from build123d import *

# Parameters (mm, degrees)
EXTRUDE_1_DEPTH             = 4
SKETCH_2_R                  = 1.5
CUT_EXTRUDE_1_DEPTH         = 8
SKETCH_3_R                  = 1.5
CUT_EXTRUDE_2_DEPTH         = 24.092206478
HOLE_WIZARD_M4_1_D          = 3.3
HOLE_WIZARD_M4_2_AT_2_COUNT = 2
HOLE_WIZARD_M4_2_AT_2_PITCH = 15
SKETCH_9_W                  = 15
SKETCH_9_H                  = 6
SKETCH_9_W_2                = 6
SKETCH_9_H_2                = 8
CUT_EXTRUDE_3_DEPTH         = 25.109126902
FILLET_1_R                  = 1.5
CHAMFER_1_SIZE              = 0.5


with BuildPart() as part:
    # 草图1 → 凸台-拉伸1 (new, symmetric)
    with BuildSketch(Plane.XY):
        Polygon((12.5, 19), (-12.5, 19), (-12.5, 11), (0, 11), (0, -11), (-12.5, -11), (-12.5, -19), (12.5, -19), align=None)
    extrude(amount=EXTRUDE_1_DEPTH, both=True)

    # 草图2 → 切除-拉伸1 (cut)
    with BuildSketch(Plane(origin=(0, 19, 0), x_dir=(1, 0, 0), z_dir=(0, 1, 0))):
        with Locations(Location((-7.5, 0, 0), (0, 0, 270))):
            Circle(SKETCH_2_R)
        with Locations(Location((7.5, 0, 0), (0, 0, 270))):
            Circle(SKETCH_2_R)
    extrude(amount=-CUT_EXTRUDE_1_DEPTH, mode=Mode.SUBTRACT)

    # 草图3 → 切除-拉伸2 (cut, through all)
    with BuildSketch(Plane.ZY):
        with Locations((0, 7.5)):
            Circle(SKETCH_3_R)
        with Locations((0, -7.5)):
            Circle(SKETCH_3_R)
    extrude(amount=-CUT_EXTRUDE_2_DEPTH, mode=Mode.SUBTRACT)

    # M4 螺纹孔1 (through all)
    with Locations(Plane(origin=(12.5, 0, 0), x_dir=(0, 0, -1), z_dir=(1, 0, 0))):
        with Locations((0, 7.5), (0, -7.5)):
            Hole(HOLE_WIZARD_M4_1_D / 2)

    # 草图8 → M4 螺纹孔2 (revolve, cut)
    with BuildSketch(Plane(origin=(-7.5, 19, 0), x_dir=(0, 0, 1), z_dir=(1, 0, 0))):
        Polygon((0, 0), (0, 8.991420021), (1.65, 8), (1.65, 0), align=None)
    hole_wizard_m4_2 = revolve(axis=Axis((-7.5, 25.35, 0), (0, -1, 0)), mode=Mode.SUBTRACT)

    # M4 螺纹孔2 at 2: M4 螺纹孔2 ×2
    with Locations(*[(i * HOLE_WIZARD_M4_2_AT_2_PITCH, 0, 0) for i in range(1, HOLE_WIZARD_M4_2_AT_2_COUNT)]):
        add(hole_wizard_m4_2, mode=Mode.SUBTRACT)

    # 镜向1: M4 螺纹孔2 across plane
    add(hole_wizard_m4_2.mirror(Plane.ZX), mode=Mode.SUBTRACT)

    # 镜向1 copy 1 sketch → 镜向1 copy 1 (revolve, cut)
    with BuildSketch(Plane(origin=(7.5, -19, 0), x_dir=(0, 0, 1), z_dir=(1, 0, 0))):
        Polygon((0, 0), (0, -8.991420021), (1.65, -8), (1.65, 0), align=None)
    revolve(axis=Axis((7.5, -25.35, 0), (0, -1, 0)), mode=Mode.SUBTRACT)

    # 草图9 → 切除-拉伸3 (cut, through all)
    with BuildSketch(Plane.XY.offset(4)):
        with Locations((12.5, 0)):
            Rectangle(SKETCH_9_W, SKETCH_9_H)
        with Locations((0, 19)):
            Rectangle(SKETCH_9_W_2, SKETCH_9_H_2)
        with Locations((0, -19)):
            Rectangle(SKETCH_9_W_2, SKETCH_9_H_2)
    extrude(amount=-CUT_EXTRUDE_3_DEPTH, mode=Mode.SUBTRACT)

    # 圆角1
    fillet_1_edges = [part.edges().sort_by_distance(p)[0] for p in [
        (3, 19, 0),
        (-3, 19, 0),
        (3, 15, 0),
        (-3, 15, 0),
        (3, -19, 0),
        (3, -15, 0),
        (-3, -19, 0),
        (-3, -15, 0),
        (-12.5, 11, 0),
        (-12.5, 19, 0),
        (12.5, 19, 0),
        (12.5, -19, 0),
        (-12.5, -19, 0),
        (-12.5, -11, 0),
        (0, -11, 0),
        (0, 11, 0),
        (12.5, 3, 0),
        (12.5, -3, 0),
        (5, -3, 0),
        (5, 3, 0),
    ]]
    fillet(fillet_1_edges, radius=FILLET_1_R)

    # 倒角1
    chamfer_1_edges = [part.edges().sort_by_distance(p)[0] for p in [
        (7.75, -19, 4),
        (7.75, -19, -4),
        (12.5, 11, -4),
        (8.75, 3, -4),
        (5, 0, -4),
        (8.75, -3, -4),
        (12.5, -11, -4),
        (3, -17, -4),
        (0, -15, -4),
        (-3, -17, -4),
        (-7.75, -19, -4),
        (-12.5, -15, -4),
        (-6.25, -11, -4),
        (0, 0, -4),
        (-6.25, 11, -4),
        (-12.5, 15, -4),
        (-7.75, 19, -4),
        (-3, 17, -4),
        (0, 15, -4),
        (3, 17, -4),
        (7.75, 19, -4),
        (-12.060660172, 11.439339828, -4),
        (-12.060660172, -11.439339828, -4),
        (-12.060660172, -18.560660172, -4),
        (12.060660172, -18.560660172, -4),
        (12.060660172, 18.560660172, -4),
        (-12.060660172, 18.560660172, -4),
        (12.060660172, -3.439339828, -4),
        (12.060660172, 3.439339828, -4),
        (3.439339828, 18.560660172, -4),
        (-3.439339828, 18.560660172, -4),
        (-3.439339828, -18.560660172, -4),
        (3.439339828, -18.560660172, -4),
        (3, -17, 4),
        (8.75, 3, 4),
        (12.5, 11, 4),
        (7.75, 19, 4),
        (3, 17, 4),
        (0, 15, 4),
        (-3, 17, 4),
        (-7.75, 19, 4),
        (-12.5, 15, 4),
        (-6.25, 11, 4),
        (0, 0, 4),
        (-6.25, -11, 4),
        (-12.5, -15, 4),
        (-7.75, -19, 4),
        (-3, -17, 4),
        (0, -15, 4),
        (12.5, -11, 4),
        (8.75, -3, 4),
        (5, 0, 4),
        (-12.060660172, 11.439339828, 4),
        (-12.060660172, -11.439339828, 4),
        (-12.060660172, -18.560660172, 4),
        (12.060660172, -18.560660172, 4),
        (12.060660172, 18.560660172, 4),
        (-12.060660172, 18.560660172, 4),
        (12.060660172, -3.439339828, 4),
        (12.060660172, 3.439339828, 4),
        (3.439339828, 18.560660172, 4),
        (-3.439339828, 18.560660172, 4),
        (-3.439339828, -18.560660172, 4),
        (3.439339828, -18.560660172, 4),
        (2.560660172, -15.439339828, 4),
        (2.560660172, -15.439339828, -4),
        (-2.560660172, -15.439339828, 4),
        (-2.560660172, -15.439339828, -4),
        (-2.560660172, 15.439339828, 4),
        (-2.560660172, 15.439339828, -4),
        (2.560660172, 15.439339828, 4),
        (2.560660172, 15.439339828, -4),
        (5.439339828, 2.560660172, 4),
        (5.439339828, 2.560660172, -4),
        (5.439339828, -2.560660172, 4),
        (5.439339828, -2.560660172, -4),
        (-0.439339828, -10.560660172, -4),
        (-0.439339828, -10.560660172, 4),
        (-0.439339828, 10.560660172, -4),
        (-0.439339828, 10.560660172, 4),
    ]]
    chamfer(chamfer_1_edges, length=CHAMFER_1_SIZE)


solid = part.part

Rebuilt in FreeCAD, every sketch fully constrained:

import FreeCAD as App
import Part
import Sketcher
from FreeCAD import Vector
Q = App.Units.Quantity


def edges_at(feature, points):
    """Names of the edges that pass closest to the given points."""
    edges = feature.Shape.Edges
    near = lambda p: min(range(len(edges)), key=lambda i: edges[i].distToShape(Part.Vertex(*p))[0])
    return sorted({f"Edge{near(p) + 1}" for p in points})


def add_polygon(sketch, points):
    """Adds a closed chain of lines whose ends are joined by coincident constraints."""
    first, n = sketch.GeometryCount, len(points)
    for a, b in zip(points, points[1:] + points[:1]):
        sketch.addGeometry(Part.LineSegment(App.Vector(*a, 0), App.Vector(*b, 0)), False)
    for i in range(n):
        sketch.addConstraint(Sketcher.Constraint("Coincident", first + i, 2, first + (i + 1) % n, 1))

doc = App.newDocument("Part")
body = doc.addObject("PartDesign::Body", "Body")

# Sketch on XY plane
sketch1 = doc.addObject("Sketcher::SketchObject", "Sketch")
body.addObject(sketch1)
sketch1.AttachmentSupport = (doc.XY_Plane, [""])
sketch1.MapMode = "FlatFace"
add_polygon(sketch1, [(12, 19), (-12, 19), (-12, 11), (0, 11), (0, -11), (-12, -11), (-12, -19), (12, -19)])  # lines 0-7
sketch1.addConstraint(Sketcher.Constraint("Horizontal", 0))
sketch1.addConstraint(Sketcher.Constraint("Vertical", 1))
sketch1.addConstraint(Sketcher.Constraint("Horizontal", 2))
sketch1.addConstraint(Sketcher.Constraint("Vertical", 3))
sketch1.addConstraint(Sketcher.Constraint("Horizontal", 4))
sketch1.addConstraint(Sketcher.Constraint("Vertical", 5))
sketch1.addConstraint(Sketcher.Constraint("Horizontal", 6))
sketch1.addConstraint(Sketcher.Constraint("Vertical", 7))
sketch1.addConstraint(Sketcher.Constraint("Symmetric", 2, 2, 3, 2, -1, 1))
sketch1.addConstraint(Sketcher.Constraint("Symmetric", 0, 2, 6, 2, -1, 1))
sketch1.addConstraint(Sketcher.Constraint("Vertical", 1, 2, 4, 2))
sketch1.addConstraint(Sketcher.Constraint("DistanceX", 0, 2, 0, 1, 25.0))
sketch1.addConstraint(Sketcher.Constraint("DistanceY", 1, 2, 1, 1, 8.0))
sketch1.addConstraint(Sketcher.Constraint("DistanceY", 3, 2, 3, 1, 22.0))
pad1 = doc.addObject("PartDesign::Pad", "Pad")
body.addObject(pad1)
pad1.Profile = sketch1
pad1.Length = 8
pad1.Midplane = True

# Sketch on XZ plane
sketch2 = doc.addObject("Sketcher::SketchObject", "Sketch001")
body.addObject(sketch2)
sketch2.AttachmentSupport = (doc.XZ_Plane, [""])
sketch2.MapMode = "FlatFace"
sketch2.AttachmentOffset = App.Placement(Vector(0, 0, -19), App.Rotation())
sketch2.addGeometry(Part.Circle(Vector(-7.5, 0, 0), Vector(0, 0, 1), 1.5), False)
sketch2.addGeometry(Part.Circle(Vector(7.5, 0, 0), Vector(0, 0, 1), 1.5), False)
sketch2.addConstraint(Sketcher.Constraint("Equal", 0, 1))
sketch2.addConstraint(Sketcher.Constraint("Symmetric", 0, 3, 1, 3, -1, 1))
sketch2.addConstraint(Sketcher.Constraint("PointOnObject", 0, 3, -1))
sketch2.addConstraint(Sketcher.Constraint("Diameter", 0, 3.0))
sketch2.addConstraint(Sketcher.Constraint("DistanceX", 0, 3, 1, 3, 15.0))
pocket1 = doc.addObject("PartDesign::Pocket", "Pocket")
body.addObject(pocket1)
pocket1.Profile = sketch2
pocket1.Length = 8
pocket1.Reversed = True

# Sketch on YZ plane
sketch3 = doc.addObject("Sketcher::SketchObject", "Sketch002")
body.addObject(sketch3)
sketch3.AttachmentSupport = (doc.YZ_Plane, [""])
sketch3.MapMode = "FlatFace"
sketch3.addGeometry(Part.Circle(Vector(7.5, 0, 0), Vector(0, 0, 1), 1.5), False)
sketch3.addGeometry(Part.Circle(Vector(-7.5, 0, 0), Vector(0, 0, 1), 1.5), False)
sketch3.addConstraint(Sketcher.Constraint("Equal", 0, 1))
sketch3.addConstraint(Sketcher.Constraint("Symmetric", 0, 3, 1, 3, -1, 1))
sketch3.addConstraint(Sketcher.Constraint("PointOnObject", 0, 3, -1))
sketch3.addConstraint(Sketcher.Constraint("Diameter", 0, 3.0))
sketch3.addConstraint(Sketcher.Constraint("DistanceX", 1, 3, 0, 3, 15.0))
pocket2 = doc.addObject("PartDesign::Pocket", "Pocket001")
body.addObject(pocket2)
pocket2.Profile = sketch3
pocket2.Type = "ThroughAll"
pocket2.Reversed = True

# Sketch on YZ plane
sketch4 = doc.addObject("Sketcher::SketchObject", "Sketch003")
body.addObject(sketch4)
sketch4.AttachmentSupport = (doc.YZ_Plane, [""])
sketch4.MapMode = "FlatFace"
sketch4.AttachmentOffset = App.Placement(Vector(0, 0, 12.5), App.Rotation())
sketch4.addGeometry(Part.Circle(Vector(7.5, 0, 0), Vector(0, 0, 1), 1.6), False)
sketch4.addGeometry(Part.Circle(Vector(-7.5, 0, 0), Vector(0, 0, 1), 1.6), False)
sketch4.addConstraint(Sketcher.Constraint("Equal", 0, 1))
sketch4.addConstraint(Sketcher.Constraint("Symmetric", 0, 3, 1, 3, -1, 1))
sketch4.addConstraint(Sketcher.Constraint("PointOnObject", 0, 3, -1))
sketch4.addConstraint(Sketcher.Constraint("Diameter", 0, 3.3))
sketch4.addConstraint(Sketcher.Constraint("DistanceX", 1, 3, 0, 3, 15.0))
doc.recompute()
hole = doc.addObject("PartDesign::Hole", "Hole")
body.addObject(hole)
hole.Profile = sketch4
hole.ThreadType = "None"
hole.Diameter = 3.3
hole.DepthType = "ThroughAll"

# Sketch on YZ plane
sketch5 = doc.addObject("Sketcher::SketchObject", "Sketch004")
body.addObject(sketch5)
sketch5.AttachmentSupport = (doc.YZ_Plane, [""])
sketch5.MapMode = "FlatFace"
sketch5.AttachmentOffset = App.Placement(Vector(0, 0, -7.5), App.Rotation())
add_polygon(sketch5, [(10, 0), (19, 0), (19, 1.6), (11, 1.6)])  # lines 0-3
sketch5.addConstraint(Sketcher.Constraint("Horizontal", 0))
sketch5.addConstraint(Sketcher.Constraint("Vertical", 1))
sketch5.addConstraint(Sketcher.Constraint("Horizontal", 2))
sketch5.addConstraint(Sketcher.Constraint("PointOnObject", 0, 2, -1))
sketch5.addConstraint(Sketcher.Constraint("DistanceX", 2, 2, 2, 1, 8.0))
sketch5.addConstraint(Sketcher.Constraint("Angle", 3, Q("-121 deg")))
sketch5.addConstraint(Sketcher.Constraint("DistanceX", -1, 1, 0, 2, 19.0))
sketch5.addConstraint(Sketcher.Constraint("DistanceY", 1, 1, 1, 2, 1.65))
groove = doc.addObject("PartDesign::Groove", "Groove")
body.addObject(groove)
groove.Profile = sketch5
groove.ReferenceAxis = (sketch5, ["H_Axis"])
groove.Angle = 360
doc.recompute()

linearpattern = doc.addObject("PartDesign::LinearPattern", "LinearPattern")
body.addObject(linearpattern)
linearpattern.Originals = [groove]
linearpattern.Direction = (doc.X_Axis, [""])
linearpattern.Mode = "offset"
linearpattern.Offset = 15
linearpattern.Occurrences = 2
body.Tip = linearpattern
doc.recompute()

mirrored = doc.addObject("PartDesign::Mirrored", "Mirrored")
body.addObject(mirrored)
mirrored.Originals = [groove]
mirrored.MirrorPlane = (doc.XZ_Plane, [""])
body.Tip = mirrored

# Sketch on YZ plane
sketch6 = doc.addObject("Sketcher::SketchObject", "Sketch005")
body.addObject(sketch6)
sketch6.AttachmentSupport = (doc.YZ_Plane, [""])
sketch6.MapMode = "FlatFace"
sketch6.AttachmentOffset = App.Placement(Vector(0, 0, 7.5), App.Rotation())
add_polygon(sketch6, [(-19, 0), (-10, 0), (-11, 1.6), (-19, 1.6)])  # lines 0-3
sketch6.addConstraint(Sketcher.Constraint("Horizontal", 0))
sketch6.addConstraint(Sketcher.Constraint("Horizontal", 2))
sketch6.addConstraint(Sketcher.Constraint("Vertical", 3))
sketch6.addConstraint(Sketcher.Constraint("PointOnObject", 0, 2, -1))
sketch6.addConstraint(Sketcher.Constraint("DistanceX", 2, 2, 2, 1, 8.0))
sketch6.addConstraint(Sketcher.Constraint("Angle", 1, Q("121 deg")))
sketch6.addConstraint(Sketcher.Constraint("DistanceX", 1, 2, -1, 1, 11.0))
sketch6.addConstraint(Sketcher.Constraint("DistanceY", 3, 2, 3, 1, 1.65))
groove2 = doc.addObject("PartDesign::Groove", "Groove001")
body.addObject(groove2)
groove2.Profile = sketch6
groove2.ReferenceAxis = (sketch6, ["H_Axis"])
groove2.Angle = 360

# Sketch on XY plane
sketch7 = doc.addObject("Sketcher::SketchObject", "Sketch006")
body.addObject(sketch7)
sketch7.AttachmentSupport = (doc.XY_Plane, [""])
sketch7.MapMode = "FlatFace"
sketch7.AttachmentOffset = App.Placement(Vector(0, 0, 4), App.Rotation())
add_polygon(sketch7, [(5, 3), (5, -3), (20, -3), (20, 3)])  # lines 0-3
add_polygon(sketch7, [(-3, 23), (-3, 15), (3, 15), (3, 23)])  # lines 4-7
add_polygon(sketch7, [(-3, -15), (-3, -23), (3, -23), (3, -15)])  # lines 8-11
sketch7.addConstraint(Sketcher.Constraint("Vertical", 0))
sketch7.addConstraint(Sketcher.Constraint("Horizontal", 1))
sketch7.addConstraint(Sketcher.Constraint("Vertical", 2))
sketch7.addConstraint(Sketcher.Constraint("Horizontal", 3))
sketch7.addConstraint(Sketcher.Constraint("Vertical", 4))
sketch7.addConstraint(Sketcher.Constraint("Horizontal", 5))
sketch7.addConstraint(Sketcher.Constraint("Vertical", 6))
sketch7.addConstraint(Sketcher.Constraint("Horizontal", 7))
sketch7.addConstraint(Sketcher.Constraint("Vertical", 8))
sketch7.addConstraint(Sketcher.Constraint("Horizontal", 9))
sketch7.addConstraint(Sketcher.Constraint("Vertical", 10))
sketch7.addConstraint(Sketcher.Constraint("Horizontal", 11))
sketch7.addConstraint(Sketcher.Constraint("Symmetric", 6, 2, 8, 2, -1, 1))
sketch7.addConstraint(Sketcher.Constraint("Symmetric", 4, 2, 10, 2, -1, 1))
sketch7.addConstraint(Sketcher.Constraint("Vertical", 7, 2, 8, 2))
sketch7.addConstraint(Sketcher.Constraint("Equal", 11, 0))
sketch7.addConstraint(Sketcher.Constraint("DistanceX", 1, 1, 1, 2, 15.0))
sketch7.addConstraint(Sketcher.Constraint("DistanceX", 5, 1, 5, 2, 6.0))
sketch7.addConstraint(Sketcher.Constraint("DistanceY", 4, 2, 4, 1, 8.0))
sketch7.addConstraint(Sketcher.Constraint("DistanceX", -1, 1, 0, 2, 5.0))
sketch7.addConstraint(Sketcher.Constraint("DistanceY", 0, 2, -1, 1, 3.0))
sketch7.addConstraint(Sketcher.Constraint("DistanceY", -1, 1, 4, 2, 15.0))
pocket3 = doc.addObject("PartDesign::Pocket", "Pocket002")
body.addObject(pocket3)
pocket3.Profile = sketch7
pocket3.Type = "ThroughAll"
doc.recompute()

fillet = doc.addObject("PartDesign::Fillet", "Fillet")
body.addObject(fillet)
fillet.Base = (pocket3, edges_at(pocket3, [
    (3, 19, 0),
    (-3, 19, 0),
    (3, 15, 0),
    (-3, 15, 0),
    (3, -19, 0),
    (3, -15, 0),
    (-3, -19, 0),
    (-3, -15, 0),
    (-12.5, 11, 0),
    (-12.5, 19, 0),
    (12.5, 19, 0),
    (12.5, -19, 0),
    (-12.5, -19, 0),
    (-12.5, -11, 0),
    (0, -11, 0),
    (0, 11, 0),
    (12.5, 3, 0),
    (12.5, -3, 0),
    (5, -3, 0),
    (5, 3, 0),
]))
fillet.Radius = 1.5
doc.recompute()

chamfer = doc.addObject("PartDesign::Chamfer", "Chamfer")
body.addObject(chamfer)
chamfer.Base = (fillet, edges_at(fillet, [
    (7.75, -19, 4),
    (7.75, -19, -4),
    (12.5, 11, -4),
    (8.75, 3, -4),
    (5, 0, -4),
    (8.75, -3, -4),
    (12.5, -11, -4),
    (3, -17, -4),
    (0, -15, -4),
    (-3, -17, -4),
    (-7.75, -19, -4),
    (-12.5, -15, -4),
    (-6.25, -11, -4),
    (0, 0, -4),
    (-6.25, 11, -4),
    (-12.5, 15, -4),
    (-7.75, 19, -4),
    (-3, 17, -4),
    (0, 15, -4),
    (3, 17, -4),
    (7.75, 19, -4),
    (-12.061, 11.439, -4),
    (-12.061, -11.439, -4),
    (-12.061, -18.561, -4),
    (12.061, -18.561, -4),
    (12.061, 18.561, -4),
    (-12.061, 18.561, -4),
    (12.061, -3.439, -4),
    (12.061, 3.439, -4),
    (3.439, 18.561, -4),
    (-3.439, 18.561, -4),
    (-3.439, -18.561, -4),
    (3.439, -18.561, -4),
    (3, -17, 4),
    (8.75, 3, 4),
    (12.5, 11, 4),
    (7.75, 19, 4),
    (3, 17, 4),
    (0, 15, 4),
    (-3, 17, 4),
    (-7.75, 19, 4),
    (-12.5, 15, 4),
    (-6.25, 11, 4),
    (0, 0, 4),
    (-6.25, -11, 4),
    (-12.5, -15, 4),
    (-7.75, -19, 4),
    (-3, -17, 4),
    (0, -15, 4),
    (12.5, -11, 4),
    (8.75, -3, 4),
    (5, 0, 4),
    (-12.061, 11.439, 4),
    (-12.061, -11.439, 4),
    (-12.061, -18.561, 4),
    (12.061, -18.561, 4),
    (12.061, 18.561, 4),
    (-12.061, 18.561, 4),
    (12.061, -3.439, 4),
    (12.061, 3.439, 4),
    (3.439, 18.561, 4),
    (-3.439, 18.561, 4),
    (-3.439, -18.561, 4),
    (3.439, -18.561, 4),
    (2.561, -15.439, 4),
    (2.561, -15.439, -4),
    (-2.561, -15.439, 4),
    (-2.561, -15.439, -4),
    (-2.561, 15.439, 4),
    (-2.561, 15.439, -4),
    (2.561, 15.439, 4),
    (2.561, 15.439, -4),
    (5.439, 2.561, 4),
    (5.439, 2.561, -4),
    (5.439, -2.561, 4),
    (5.439, -2.561, -4),
    (-0.439, -10.561, -4),
    (-0.439, -10.561, 4),
    (-0.439, 10.561, -4),
    (-0.439, 10.561, 4),
]))
chamfer.Size = 0.5

doc.recompute()
